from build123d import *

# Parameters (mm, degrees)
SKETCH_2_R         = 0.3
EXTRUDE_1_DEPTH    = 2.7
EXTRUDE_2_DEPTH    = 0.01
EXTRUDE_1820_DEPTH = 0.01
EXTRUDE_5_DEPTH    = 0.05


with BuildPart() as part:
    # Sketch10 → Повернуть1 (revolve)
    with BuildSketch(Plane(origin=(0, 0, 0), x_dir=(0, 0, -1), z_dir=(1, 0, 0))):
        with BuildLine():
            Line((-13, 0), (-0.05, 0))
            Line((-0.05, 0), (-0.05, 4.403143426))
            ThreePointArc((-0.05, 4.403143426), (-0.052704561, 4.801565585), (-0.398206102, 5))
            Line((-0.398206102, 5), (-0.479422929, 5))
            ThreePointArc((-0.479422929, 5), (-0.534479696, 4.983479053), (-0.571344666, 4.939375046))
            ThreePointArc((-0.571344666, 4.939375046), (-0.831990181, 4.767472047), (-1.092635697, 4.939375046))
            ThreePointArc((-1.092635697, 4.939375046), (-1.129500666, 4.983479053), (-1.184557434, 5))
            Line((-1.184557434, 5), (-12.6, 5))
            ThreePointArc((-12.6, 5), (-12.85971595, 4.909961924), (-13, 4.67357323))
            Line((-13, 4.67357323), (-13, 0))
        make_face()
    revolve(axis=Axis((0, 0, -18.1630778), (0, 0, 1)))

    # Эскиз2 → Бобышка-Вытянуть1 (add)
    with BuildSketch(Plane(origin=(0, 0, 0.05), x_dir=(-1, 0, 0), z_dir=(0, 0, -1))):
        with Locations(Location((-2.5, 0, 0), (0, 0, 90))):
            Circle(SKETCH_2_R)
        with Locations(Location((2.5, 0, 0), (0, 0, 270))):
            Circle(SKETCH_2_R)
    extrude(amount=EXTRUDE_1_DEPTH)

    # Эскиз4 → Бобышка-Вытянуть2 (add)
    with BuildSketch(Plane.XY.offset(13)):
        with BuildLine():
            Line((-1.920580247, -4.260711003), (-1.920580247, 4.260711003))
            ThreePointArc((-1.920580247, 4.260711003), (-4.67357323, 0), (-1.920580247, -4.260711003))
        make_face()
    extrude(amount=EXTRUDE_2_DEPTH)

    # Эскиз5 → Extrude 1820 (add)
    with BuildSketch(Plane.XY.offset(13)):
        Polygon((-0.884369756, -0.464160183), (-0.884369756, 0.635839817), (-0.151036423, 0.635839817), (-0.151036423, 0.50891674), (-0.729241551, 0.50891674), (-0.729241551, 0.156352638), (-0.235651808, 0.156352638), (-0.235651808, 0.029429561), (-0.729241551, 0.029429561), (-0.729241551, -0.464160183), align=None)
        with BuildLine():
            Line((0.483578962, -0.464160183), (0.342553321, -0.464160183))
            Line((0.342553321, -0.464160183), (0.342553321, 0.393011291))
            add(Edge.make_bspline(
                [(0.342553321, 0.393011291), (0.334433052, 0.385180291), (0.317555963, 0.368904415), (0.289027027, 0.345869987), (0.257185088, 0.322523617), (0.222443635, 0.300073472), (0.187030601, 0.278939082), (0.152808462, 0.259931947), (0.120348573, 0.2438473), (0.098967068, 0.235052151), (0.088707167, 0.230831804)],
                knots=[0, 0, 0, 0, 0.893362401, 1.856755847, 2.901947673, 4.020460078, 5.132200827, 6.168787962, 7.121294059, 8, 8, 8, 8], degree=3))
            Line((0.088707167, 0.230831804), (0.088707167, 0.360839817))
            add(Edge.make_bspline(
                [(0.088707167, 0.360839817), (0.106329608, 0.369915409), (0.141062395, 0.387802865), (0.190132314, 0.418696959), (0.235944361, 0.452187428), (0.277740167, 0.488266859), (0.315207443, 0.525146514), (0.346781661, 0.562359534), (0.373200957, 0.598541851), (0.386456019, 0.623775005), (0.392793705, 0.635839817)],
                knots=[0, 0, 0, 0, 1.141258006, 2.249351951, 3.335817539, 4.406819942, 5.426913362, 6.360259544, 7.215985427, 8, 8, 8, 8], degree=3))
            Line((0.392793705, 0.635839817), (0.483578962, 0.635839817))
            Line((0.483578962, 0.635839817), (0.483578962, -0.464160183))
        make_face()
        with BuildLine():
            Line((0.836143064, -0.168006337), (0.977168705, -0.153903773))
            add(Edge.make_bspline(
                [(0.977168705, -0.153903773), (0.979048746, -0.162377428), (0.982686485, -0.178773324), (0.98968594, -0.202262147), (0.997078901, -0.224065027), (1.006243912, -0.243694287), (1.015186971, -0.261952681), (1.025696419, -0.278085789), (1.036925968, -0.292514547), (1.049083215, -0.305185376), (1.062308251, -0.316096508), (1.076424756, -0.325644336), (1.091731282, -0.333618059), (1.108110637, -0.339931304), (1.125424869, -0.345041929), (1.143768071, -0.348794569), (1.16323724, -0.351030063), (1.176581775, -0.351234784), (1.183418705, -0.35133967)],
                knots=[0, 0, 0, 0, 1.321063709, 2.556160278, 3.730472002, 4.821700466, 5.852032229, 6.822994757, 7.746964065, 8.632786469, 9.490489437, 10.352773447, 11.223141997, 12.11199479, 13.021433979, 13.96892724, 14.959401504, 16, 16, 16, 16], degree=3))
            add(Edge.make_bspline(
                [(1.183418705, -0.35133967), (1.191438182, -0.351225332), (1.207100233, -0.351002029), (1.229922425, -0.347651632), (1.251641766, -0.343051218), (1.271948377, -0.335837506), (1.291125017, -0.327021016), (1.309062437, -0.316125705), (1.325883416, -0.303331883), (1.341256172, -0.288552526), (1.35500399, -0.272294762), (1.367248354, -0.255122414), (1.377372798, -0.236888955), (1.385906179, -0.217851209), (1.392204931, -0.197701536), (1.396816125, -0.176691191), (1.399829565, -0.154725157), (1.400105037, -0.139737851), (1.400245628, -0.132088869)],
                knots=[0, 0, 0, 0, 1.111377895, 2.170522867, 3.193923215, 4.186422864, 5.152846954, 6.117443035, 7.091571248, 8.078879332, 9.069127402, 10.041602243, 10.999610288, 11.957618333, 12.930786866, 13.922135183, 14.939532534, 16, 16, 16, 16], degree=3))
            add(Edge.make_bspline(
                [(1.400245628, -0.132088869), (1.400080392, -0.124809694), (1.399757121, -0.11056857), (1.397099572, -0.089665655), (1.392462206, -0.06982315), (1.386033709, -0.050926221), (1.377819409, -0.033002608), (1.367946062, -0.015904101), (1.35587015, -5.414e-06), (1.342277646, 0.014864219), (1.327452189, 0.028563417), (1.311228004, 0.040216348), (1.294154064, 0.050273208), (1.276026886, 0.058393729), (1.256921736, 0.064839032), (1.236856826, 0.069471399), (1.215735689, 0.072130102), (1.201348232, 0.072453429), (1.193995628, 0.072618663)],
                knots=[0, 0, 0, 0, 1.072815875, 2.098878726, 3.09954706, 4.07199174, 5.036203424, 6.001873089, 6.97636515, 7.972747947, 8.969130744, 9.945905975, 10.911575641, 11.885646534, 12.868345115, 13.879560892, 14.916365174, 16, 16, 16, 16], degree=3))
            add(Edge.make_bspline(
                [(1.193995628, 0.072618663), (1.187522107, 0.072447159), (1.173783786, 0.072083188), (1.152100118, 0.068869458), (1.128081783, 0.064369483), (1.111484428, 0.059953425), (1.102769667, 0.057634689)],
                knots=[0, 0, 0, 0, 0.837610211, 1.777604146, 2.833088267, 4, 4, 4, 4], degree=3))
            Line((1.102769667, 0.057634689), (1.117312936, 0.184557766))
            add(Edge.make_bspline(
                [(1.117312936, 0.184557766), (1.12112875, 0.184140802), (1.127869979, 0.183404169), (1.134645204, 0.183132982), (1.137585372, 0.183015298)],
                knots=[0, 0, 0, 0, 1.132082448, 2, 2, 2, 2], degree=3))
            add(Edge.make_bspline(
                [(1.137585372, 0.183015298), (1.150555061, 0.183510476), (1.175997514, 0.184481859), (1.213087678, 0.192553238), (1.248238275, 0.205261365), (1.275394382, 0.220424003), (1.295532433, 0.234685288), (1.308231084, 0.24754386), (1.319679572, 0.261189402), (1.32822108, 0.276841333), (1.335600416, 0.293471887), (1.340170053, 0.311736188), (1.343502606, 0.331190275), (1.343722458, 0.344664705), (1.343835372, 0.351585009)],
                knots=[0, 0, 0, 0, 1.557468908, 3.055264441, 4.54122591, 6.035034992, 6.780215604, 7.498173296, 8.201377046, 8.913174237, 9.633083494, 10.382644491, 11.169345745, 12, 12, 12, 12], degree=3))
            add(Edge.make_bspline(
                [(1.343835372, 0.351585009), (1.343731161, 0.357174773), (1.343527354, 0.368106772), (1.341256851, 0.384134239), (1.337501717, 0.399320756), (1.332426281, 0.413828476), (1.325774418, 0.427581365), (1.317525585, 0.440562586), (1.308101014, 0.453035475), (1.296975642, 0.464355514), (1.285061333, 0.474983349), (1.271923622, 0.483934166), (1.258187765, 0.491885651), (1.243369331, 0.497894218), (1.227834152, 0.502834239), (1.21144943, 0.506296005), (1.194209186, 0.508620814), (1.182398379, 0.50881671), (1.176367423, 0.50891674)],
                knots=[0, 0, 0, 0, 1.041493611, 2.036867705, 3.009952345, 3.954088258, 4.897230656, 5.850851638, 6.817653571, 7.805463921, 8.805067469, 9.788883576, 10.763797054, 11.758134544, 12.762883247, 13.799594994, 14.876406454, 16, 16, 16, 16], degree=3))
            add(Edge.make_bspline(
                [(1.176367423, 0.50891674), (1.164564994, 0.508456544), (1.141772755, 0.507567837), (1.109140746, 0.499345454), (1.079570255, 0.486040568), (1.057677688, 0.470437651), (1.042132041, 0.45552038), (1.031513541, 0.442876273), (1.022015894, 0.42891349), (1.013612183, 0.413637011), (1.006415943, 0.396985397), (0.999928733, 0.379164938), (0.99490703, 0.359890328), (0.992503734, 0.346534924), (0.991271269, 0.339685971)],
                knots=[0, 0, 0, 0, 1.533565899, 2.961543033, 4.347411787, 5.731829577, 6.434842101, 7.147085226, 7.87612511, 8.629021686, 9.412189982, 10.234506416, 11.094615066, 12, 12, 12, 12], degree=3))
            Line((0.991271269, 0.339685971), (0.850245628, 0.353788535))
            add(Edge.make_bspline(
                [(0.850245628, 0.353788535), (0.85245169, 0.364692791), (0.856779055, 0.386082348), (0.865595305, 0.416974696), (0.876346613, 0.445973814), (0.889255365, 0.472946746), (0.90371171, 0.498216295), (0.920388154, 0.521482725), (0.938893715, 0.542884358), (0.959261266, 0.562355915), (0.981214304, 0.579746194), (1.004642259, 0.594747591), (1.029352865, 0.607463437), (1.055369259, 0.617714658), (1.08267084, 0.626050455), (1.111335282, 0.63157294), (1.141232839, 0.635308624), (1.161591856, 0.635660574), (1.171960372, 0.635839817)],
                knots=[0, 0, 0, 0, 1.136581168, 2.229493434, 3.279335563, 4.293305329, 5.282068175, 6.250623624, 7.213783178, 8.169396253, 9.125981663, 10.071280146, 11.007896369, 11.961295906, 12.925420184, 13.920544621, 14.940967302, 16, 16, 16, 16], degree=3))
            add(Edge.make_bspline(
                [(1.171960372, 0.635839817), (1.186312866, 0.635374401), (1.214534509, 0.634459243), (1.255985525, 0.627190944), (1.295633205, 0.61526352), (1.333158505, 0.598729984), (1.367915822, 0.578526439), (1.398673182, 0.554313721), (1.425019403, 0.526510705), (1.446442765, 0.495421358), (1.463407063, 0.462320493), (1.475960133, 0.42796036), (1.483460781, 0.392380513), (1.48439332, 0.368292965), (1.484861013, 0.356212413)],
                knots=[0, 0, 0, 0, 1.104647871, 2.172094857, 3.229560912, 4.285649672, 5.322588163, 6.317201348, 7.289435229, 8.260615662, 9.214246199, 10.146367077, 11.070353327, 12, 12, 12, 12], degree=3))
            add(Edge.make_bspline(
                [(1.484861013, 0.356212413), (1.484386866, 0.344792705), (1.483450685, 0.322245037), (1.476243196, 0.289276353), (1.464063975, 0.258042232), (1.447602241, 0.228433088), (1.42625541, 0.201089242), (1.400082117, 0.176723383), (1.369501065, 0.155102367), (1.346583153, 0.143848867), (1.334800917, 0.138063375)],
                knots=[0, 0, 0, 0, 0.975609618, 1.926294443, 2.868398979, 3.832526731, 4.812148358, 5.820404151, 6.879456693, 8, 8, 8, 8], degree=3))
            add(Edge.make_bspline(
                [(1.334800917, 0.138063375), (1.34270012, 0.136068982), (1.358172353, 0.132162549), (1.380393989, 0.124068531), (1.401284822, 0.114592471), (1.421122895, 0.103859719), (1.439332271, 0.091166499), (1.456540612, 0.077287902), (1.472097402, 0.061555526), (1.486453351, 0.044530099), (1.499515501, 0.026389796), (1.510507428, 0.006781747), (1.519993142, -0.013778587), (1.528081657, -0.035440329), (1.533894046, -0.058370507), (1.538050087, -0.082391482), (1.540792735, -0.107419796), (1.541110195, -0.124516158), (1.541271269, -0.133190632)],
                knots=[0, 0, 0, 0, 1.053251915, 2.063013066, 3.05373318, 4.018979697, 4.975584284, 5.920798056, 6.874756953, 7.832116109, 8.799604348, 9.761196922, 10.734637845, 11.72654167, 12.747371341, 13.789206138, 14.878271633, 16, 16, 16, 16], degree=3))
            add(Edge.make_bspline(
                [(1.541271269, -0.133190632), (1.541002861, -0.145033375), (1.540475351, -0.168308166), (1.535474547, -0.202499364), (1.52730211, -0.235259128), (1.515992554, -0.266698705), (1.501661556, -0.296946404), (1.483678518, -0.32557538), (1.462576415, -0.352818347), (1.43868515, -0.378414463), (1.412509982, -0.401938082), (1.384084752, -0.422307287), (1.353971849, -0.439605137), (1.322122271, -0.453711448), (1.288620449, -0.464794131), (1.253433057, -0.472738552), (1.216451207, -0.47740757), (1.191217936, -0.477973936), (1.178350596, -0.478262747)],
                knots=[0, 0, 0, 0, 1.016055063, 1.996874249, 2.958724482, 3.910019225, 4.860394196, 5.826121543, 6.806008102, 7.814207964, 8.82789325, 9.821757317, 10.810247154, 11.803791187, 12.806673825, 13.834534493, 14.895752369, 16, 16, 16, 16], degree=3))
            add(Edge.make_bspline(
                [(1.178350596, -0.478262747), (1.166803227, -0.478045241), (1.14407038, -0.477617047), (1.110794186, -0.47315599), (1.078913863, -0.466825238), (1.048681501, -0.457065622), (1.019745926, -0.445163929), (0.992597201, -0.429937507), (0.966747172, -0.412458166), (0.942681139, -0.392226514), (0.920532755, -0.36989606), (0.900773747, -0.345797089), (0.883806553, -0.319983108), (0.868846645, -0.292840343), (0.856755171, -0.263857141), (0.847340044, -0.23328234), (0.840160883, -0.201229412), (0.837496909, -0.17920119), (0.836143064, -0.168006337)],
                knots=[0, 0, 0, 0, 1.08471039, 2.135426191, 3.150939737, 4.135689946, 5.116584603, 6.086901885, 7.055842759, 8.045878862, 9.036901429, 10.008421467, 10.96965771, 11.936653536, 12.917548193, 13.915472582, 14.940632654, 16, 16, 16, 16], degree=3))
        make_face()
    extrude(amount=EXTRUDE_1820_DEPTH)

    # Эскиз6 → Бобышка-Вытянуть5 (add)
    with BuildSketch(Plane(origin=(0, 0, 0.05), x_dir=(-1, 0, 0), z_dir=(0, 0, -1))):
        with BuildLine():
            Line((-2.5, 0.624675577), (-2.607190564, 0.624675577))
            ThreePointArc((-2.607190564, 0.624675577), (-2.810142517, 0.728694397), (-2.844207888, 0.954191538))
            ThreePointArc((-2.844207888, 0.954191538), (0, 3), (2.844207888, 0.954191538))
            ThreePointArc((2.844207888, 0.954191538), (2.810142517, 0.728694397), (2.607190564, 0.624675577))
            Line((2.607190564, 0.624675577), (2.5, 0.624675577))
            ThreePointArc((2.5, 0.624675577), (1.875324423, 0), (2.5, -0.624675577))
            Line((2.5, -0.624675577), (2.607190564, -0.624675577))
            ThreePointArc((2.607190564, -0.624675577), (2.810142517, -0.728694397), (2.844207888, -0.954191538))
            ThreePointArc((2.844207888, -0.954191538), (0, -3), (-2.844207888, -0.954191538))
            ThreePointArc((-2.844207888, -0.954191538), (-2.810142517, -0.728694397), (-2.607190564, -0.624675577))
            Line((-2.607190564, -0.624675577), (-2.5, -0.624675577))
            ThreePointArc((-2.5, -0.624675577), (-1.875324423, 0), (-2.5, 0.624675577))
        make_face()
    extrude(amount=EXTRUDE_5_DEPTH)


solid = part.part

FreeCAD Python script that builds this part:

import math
import FreeCAD as App
import Part
import Sketcher
Q = App.Units.Quantity


def add_polygon(sketch, points):
    """Adds a closed chain of lines whose ends are joined by coincident constraints."""
    first, n = sketch.GeometryCount, len(points)
    for a, b in zip(points, points[1:] + points[:1]):
        sketch.addGeometry(Part.LineSegment(App.Vector(*a, 0), App.Vector(*b, 0)), False)
    for i in range(n):
        sketch.addConstraint(Sketcher.Constraint("Coincident", first + i, 2, first + (i + 1) % n, 1))

doc = App.newDocument("Part")
body = doc.addObject("PartDesign::Body", "Body")

# Sketch on YZ plane
sketch1 = body.newObject("Sketcher::SketchObject", "Sketch")
sketch1.AttachmentSupport = (doc.getObject("YZ_Plane"), [""])
sketch1.MapMode = "FlatFace"
sketch1.addGeometry([
    Part.LineSegment(App.Vector(0, 13, 0), App.Vector(0, 0.05, 0)),  # 0
    Part.LineSegment(App.Vector(0, 0.05, 0), App.Vector(4.4, 0.05, 0)),  # 1
    Part.ArcOfCircle(Part.Circle(App.Vector(4.6, 0.4, 0), App.Vector(0, 0, 1), 0.4), math.radians(-119), math.radians(0)),  # 2
    Part.LineSegment(App.Vector(5, 0.4, 0), App.Vector(5, 0.48, 0)),  # 3
    Part.ArcOfCircle(Part.Circle(App.Vector(4.9, 0.48, 0), App.Vector(0, 0, 1), 0.1), math.radians(0), math.radians(67)),  # 4
    Part.ArcOfCircle(Part.Circle(App.Vector(5.05, 0.83, 0), App.Vector(0, 0, 1), 0.28), math.radians(113), math.radians(247)),  # 5
    Part.ArcOfCircle(Part.Circle(App.Vector(4.9, 1.18, 0), App.Vector(0, 0, 1), 0.1), math.radians(-67), math.radians(0)),  # 6
    Part.LineSegment(App.Vector(5, 1.18, 0), App.Vector(5, 12.6, 0)),  # 7
    Part.ArcOfCircle(Part.Circle(App.Vector(4.6, 12.61, 0), App.Vector(0, 0, 1), 0.4), math.radians(-1), math.radians(79)),  # 8
    Part.LineSegment(App.Vector(4.67, 13, 0), App.Vector(0, 13, 0)),  # 9
], False)
sketch1.addConstraint([
    Sketcher.Constraint("Coincident", 0, 2, 1, 1),
    Sketcher.Constraint("Coincident", 1, 2, 2, 1),
    Sketcher.Constraint("Tangent", 2, 2, 3, 1),
    Sketcher.Constraint("Tangent", 3, 2, 4, 1),
    Sketcher.Constraint("Tangent", 4, 2, 5, 2),
    Sketcher.Constraint("Tangent", 5, 1, 6, 1),
    Sketcher.Constraint("Tangent", 6, 2, 7, 1),
    Sketcher.Constraint("Coincident", 7, 2, 8, 1),
    Sketcher.Constraint("Coincident", 8, 2, 9, 1),
    Sketcher.Constraint("Coincident", 9, 2, 0, 1),
    Sketcher.Constraint("Vertical", 0),
    Sketcher.Constraint("Horizontal", 1),
    Sketcher.Constraint("Vertical", 3),
    Sketcher.Constraint("Vertical", 7),
    Sketcher.Constraint("Horizontal", 9),
    Sketcher.Constraint("Equal", 4, 6),
    Sketcher.Constraint("Equal", 2, 8),
    Sketcher.Constraint("PointOnObject", 0, 2, -2),
    Sketcher.Constraint("Vertical", 4, 3, 6, 3),
    Sketcher.Constraint("Radius", 2, Q("0.4 mm")),
    Sketcher.Constraint("Radius", 4, Q("0.1 mm")),
    Sketcher.Constraint("DistanceX", -1, 1, 2, 2, Q("5 mm")),
    Sketcher.Constraint("DistanceY", -1, 1, 8, 2, Q("13 mm")),
    Sketcher.Constraint("DistanceY", 0, 2, 0, 1, Q("12.95 mm")),
    Sketcher.Constraint("DistanceY", -1, 1, 7, 2, Q("12.6 mm")),
    Sketcher.Constraint("Radius", 5, Q("0.283552 mm")),
    Sketcher.Constraint("DistanceX", 8, 2, 5, 1, Q("0.265802 mm")),
    Sketcher.Constraint("DistanceX", 1, 1, 1, 2, Q("4.403143 mm")),
    Sketcher.Constraint("DistanceX", 9, 2, 9, 1, Q("4.673573 mm")),
    Sketcher.Constraint("DistanceY", 3, 1, 3, 2, Q("0.081217 mm")),
])
revolution = body.newObject("PartDesign::Revolution", "Revolution")
revolution.Profile = sketch1
revolution.ReferenceAxis = (sketch1, ["V_Axis"])
revolution.Angle = 360

# Sketch on XY plane
sketch2 = body.newObject("Sketcher::SketchObject", "Sketch001")
sketch2.AttachmentSupport = (doc.getObject("XY_Plane"), [""])
sketch2.MapMode = "FlatFace"
sketch2.AttachmentOffset = App.Placement(App.Vector(0, 0, 0.05), App.Rotation())
sketch2.addGeometry([
    Part.Circle(App.Vector(2.5, 0, 0), App.Vector(0, 0, 1), 0.3),
    Part.Circle(App.Vector(-2.5, 0, 0), App.Vector(0, 0, 1), 0.3),
], False)
sketch2.addConstraint([
    Sketcher.Constraint("Equal", 0, 1),
    Sketcher.Constraint("Symmetric", 0, 3, 1, 3, -1, 1),
    Sketcher.Constraint("PointOnObject", 0, 3, -1),
    Sketcher.Constraint("Diameter", 0, Q("0.6 mm")),
    Sketcher.Constraint("DistanceX", 1, 3, 0, 3, Q("5 mm")),
])
pad1 = body.newObject("PartDesign::Pad", "Pad")
pad1.Profile = sketch2
pad1.Length = 2.7
pad1.Reversed = True

# Sketch on XY plane
sketch3 = body.newObject("Sketcher::SketchObject", "Sketch002")
sketch3.AttachmentSupport = (doc.getObject("XY_Plane"), [""])
sketch3.MapMode = "FlatFace"
sketch3.AttachmentOffset = App.Placement(App.Vector(0, 0, 13), App.Rotation())
sketch3.addGeometry([
    Part.LineSegment(App.Vector(-1.9, -4.3, 0), App.Vector(-1.9, 4.3, 0)),
    Part.ArcOfCircle(Part.Circle(App.Vector(0, 0, 0), App.Vector(0, 0, 1), 4.7), math.radians(114), math.radians(246)),
], False)
sketch3.addConstraint([
    Sketcher.Constraint("Coincident", 0, 1, 1, 2),
    Sketcher.Constraint("Coincident", 1, 1, 0, 2),
    Sketcher.Constraint("Vertical", 0),
    Sketcher.Constraint("Coincident", 1, 3, -1, 1),
    Sketcher.Constraint("Radius", 1, Q("4.673573 mm")),
    Sketcher.Constraint("DistanceY", 0, 1, 0, 2, Q("8.521422 mm")),
])
pad2 = body.newObject("PartDesign::Pad", "Pad001")
pad2.Profile = sketch3
pad2.Length = 0.01

# Sketch on XY plane
sketch4 = body.newObject("Sketcher::SketchObject", "Sketch003")
sketch4.AttachmentSupport = (doc.getObject("XY_Plane"), [""])
sketch4.MapMode = "FlatFace"
sketch4.AttachmentOffset = App.Placement(App.Vector(0, 0, 13), App.Rotation())
add_polygon(sketch4, [(-0.88437, 0.63584), (-0.88437, -0.46416), (-0.729242, -0.46416), (-0.729242, 0.02943), (-0.235652, 0.02943), (-0.235652, 0.156353), (-0.729242, 0.156353), (-0.729242, 0.508917), (-0.151036, 0.508917), (-0.151036, 0.63584)])  # lines 0-9
sketch4.addGeometry(Part.LineSegment(App.Vector(0.342553, -0.46416, 0), App.Vector(0.483579, -0.46416, 0)), False)  # 10
sketch4.addGeometry(Part.LineSegment(App.Vector(0.483579, -0.46416, 0), App.Vector(0.483579, 0.63584, 0)), False)  # 11
sketch4.addGeometry(Part.LineSegment(App.Vector(0.483579, 0.63584, 0), App.Vector(0.392794, 0.63584, 0)), False)  # 12
sketch4.addGeometry(Part.BSplineCurve([App.Vector(0.088707, 0.36084, 0), App.Vector(0.10633, 0.369915, 0), App.Vector(0.141062, 0.387803, 0), App.Vector(0.190132, 0.418697, 0), App.Vector(0.235944, 0.452187, 0), App.Vector(0.27774, 0.488267, 0), App.Vector(0.315207, 0.525147, 0), App.Vector(0.346782, 0.56236, 0), App.Vector(0.373201, 0.598542, 0), App.Vector(0.386456, 0.623775, 0), App.Vector(0.392794, 0.63584, 0)], [4, 1, 1, 1, 1, 1, 1, 1, 4], [0, 1.141258006, 2.249351951, 3.335817539, 4.406819942, 5.426913362, 6.360259544, 7.215985427, 8], False, 3, [1, 1, 1, 1, 1, 1, 1, 1, 1, 1, 1], False), False)  # 13
sketch4.addGeometry(Part.LineSegment(App.Vector(0.088707, 0.36084, 0), App.Vector(0.088707, 0.230832, 0)), False)  # 14
sketch4.addGeometry(Part.BSplineCurve([App.Vector(0.342553, 0.393011, 0), App.Vector(0.334433, 0.38518, 0), App.Vector(0.317556, 0.368904, 0), App.Vector(0.289027, 0.34587, 0), App.Vector(0.257185, 0.322524, 0), App.Vector(0.222444, 0.300073, 0), App.Vector(0.187031, 0.278939, 0), App.Vector(0.152808, 0.259932, 0), App.Vector(0.120349, 0.243847, 0), App.Vector(0.098967, 0.235052, 0), App.Vector(0.088707, 0.230832, 0)], [4, 1, 1, 1, 1, 1, 1, 1, 4], [0, 0.893362401, 1.856755847, 2.901947673, 4.020460078, 5.132200827, 6.168787962, 7.121294059, 8], False, 3, [1, 1, 1, 1, 1, 1, 1, 1, 1, 1, 1], False), False)  # 15
sketch4.addGeometry(Part.LineSegment(App.Vector(0.342553, 0.393011, 0), App.Vector(0.342553, -0.46416, 0)), False)  # 16
sketch4.addGeometry(Part.LineSegment(App.Vector(0.977169, -0.153904, 0), App.Vector(0.836143, -0.168006, 0)), False)  # 17
sketch4.addGeometry(Part.BSplineCurve([App.Vector(1.178351, -0.478263, 0), App.Vector(1.166803, -0.478045, 0), App.Vector(1.14407, -0.477617, 0), App.Vector(1.110794, -0.473156, 0), App.Vector(1.078914, -0.466825, 0), App.Vector(1.048682, -0.457066, 0), App.Vector(1.019746, -0.445164, 0), App.Vector(0.992597, -0.429938, 0), App.Vector(0.966747, -0.412458, 0), App.Vector(0.942681, -0.392227, 0), App.Vector(0.920533, -0.369896, 0), App.Vector(0.900774, -0.345797, 0), App.Vector(0.883807, -0.319983, 0), App.Vector(0.868847, -0.29284, 0), App.Vector(0.856755, -0.263857, 0), App.Vector(0.84734, -0.233282, 0), App.Vector(0.840161, -0.201229, 0), App.Vector(0.837497, -0.179201, 0), App.Vector(0.836143, -0.168006, 0)], [4, 1, 1, 1, 1, 1, 1, 1, 1, 1, 1, 1, 1, 1, 1, 1, 4], [0, 1.08471039, 2.135426191, 3.150939737, 4.135689946, 5.116584603, 6.086901885, 7.055842759, 8.045878862, 9.036901429, 10.008421467, 10.96965771, 11.936653536, 12.917548193, 13.915472582, 14.940632654, 16], False, 3, [1, 1, 1, 1, 1, 1, 1, 1, 1, 1, 1, 1, 1, 1, 1, 1, 1, 1, 1], False), False)  # 18
sketch4.addGeometry(Part.BSplineCurve([App.Vector(1.541271, -0.133191, 0), App.Vector(1.541003, -0.145033, 0), App.Vector(1.540475, -0.168308, 0), App.Vector(1.535475, -0.202499, 0), App.Vector(1.527302, -0.235259, 0), App.Vector(1.515993, -0.266699, 0), App.Vector(1.501662, -0.296946, 0), App.Vector(1.483679, -0.325575, 0), App.Vector(1.462576, -0.352818, 0), App.Vector(1.438685, -0.378414, 0), App.Vector(1.41251, -0.401938, 0), App.Vector(1.384085, -0.422307, 0), App.Vector(1.353972, -0.439605, 0), App.Vector(1.322122, -0.453711, 0), App.Vector(1.28862, -0.464794, 0), App.Vector(1.253433, -0.472739, 0), App.Vector(1.216451, -0.477408, 0), App.Vector(1.191218, -0.477974, 0), App.Vector(1.178351, -0.478263, 0)], [4, 1, 1, 1, 1, 1, 1, 1, 1, 1, 1, 1, 1, 1, 1, 1, 4], [0, 1.016055063, 1.996874249, 2.958724482, 3.910019225, 4.860394196, 5.826121543, 6.806008102, 7.814207964, 8.82789325, 9.821757317, 10.810247154, 11.803791187, 12.806673825, 13.834534493, 14.895752369, 16], False, 3, [1, 1, 1, 1, 1, 1, 1, 1, 1, 1, 1, 1, 1, 1, 1, 1, 1, 1, 1], False), False)  # 19
sketch4.addGeometry(Part.BSplineCurve([App.Vector(1.334801, 0.138063, 0), App.Vector(1.3427, 0.136069, 0), App.Vector(1.358172, 0.132163, 0), App.Vector(1.380394, 0.124069, 0), App.Vector(1.401285, 0.114592, 0), App.Vector(1.421123, 0.10386, 0), App.Vector(1.439332, 0.091166, 0), App.Vector(1.456541, 0.077288, 0), App.Vector(1.472097, 0.061556, 0), App.Vector(1.486453, 0.04453, 0), App.Vector(1.499516, 0.02639, 0), App.Vector(1.510507, 0.006782, 0), App.Vector(1.519993, -0.013779, 0), App.Vector(1.528082, -0.03544, 0), App.Vector(1.533894, -0.058371, 0), App.Vector(1.53805, -0.082391, 0), App.Vector(1.540793, -0.10742, 0), App.Vector(1.54111, -0.124516, 0), App.Vector(1.541271, -0.133191, 0)], [4, 1, 1, 1, 1, 1, 1, 1, 1, 1, 1, 1, 1, 1, 1, 1, 4], [0, 1.053251915, 2.063013066, 3.05373318, 4.018979697, 4.975584284, 5.920798056, 6.874756953, 7.832116109, 8.799604348, 9.761196922, 10.734637845, 11.72654167, 12.747371341, 13.789206138, 14.878271633, 16], False, 3, [1, 1, 1, 1, 1, 1, 1, 1, 1, 1, 1, 1, 1, 1, 1, 1, 1, 1, 1], False), False)  # 20
sketch4.addGeometry(Part.BSplineCurve([App.Vector(1.484861, 0.356212, 0), App.Vector(1.484387, 0.344793, 0), App.Vector(1.483451, 0.322245, 0), App.Vector(1.476243, 0.289276, 0), App.Vector(1.464064, 0.258042, 0), App.Vector(1.447602, 0.228433, 0), App.Vector(1.426255, 0.201089, 0), App.Vector(1.400082, 0.176723, 0), App.Vector(1.369501, 0.155102, 0), App.Vector(1.346583, 0.143849, 0), App.Vector(1.334801, 0.138063, 0)], [4, 1, 1, 1, 1, 1, 1, 1, 4], [0, 0.975609618, 1.926294443, 2.868398979, 3.832526731, 4.812148358, 5.820404151, 6.879456693, 8], False, 3, [1, 1, 1, 1, 1, 1, 1, 1, 1, 1, 1], False), False)  # 21
sketch4.addGeometry(Part.BSplineCurve([App.Vector(1.17196, 0.63584, 0), App.Vector(1.186313, 0.635374, 0), App.Vector(1.214535, 0.634459, 0), App.Vector(1.255986, 0.627191, 0), App.Vector(1.295633, 0.615264, 0), App.Vector(1.333159, 0.59873, 0), App.Vector(1.367916, 0.578526, 0), App.Vector(1.398673, 0.554314, 0), App.Vector(1.425019, 0.526511, 0), App.Vector(1.446443, 0.495421, 0), App.Vector(1.463407, 0.46232, 0), App.Vector(1.47596, 0.42796, 0), App.Vector(1.483461, 0.392381, 0), App.Vector(1.484393, 0.368293, 0), App.Vector(1.484861, 0.356212, 0)], [4, 1, 1, 1, 1, 1, 1, 1, 1, 1, 1, 1, 4], [0, 1.104647871, 2.172094857, 3.229560912, 4.285649672, 5.322588163, 6.317201348, 7.289435229, 8.260615662, 9.214246199, 10.146367077, 11.070353327, 12], False, 3, [1, 1, 1, 1, 1, 1, 1, 1, 1, 1, 1, 1, 1, 1, 1], False), False)  # 22
sketch4.addGeometry(Part.BSplineCurve([App.Vector(0.850246, 0.353789, 0), App.Vector(0.852452, 0.364693, 0), App.Vector(0.856779, 0.386082, 0), App.Vector(0.865595, 0.416975, 0), App.Vector(0.876347, 0.445974, 0), App.Vector(0.889255, 0.472947, 0), App.Vector(0.903712, 0.498216, 0), App.Vector(0.920388, 0.521483, 0), App.Vector(0.938894, 0.542884, 0), App.Vector(0.959261, 0.562356, 0), App.Vector(0.981214, 0.579746, 0), App.Vector(1.004642, 0.594748, 0), App.Vector(1.029353, 0.607463, 0), App.Vector(1.055369, 0.617715, 0), App.Vector(1.082671, 0.62605, 0), App.Vector(1.111335, 0.631573, 0), App.Vector(1.141233, 0.635309, 0), App.Vector(1.161592, 0.635661, 0), App.Vector(1.17196, 0.63584, 0)], [4, 1, 1, 1, 1, 1, 1, 1, 1, 1, 1, 1, 1, 1, 1, 1, 4], [0, 1.136581168, 2.229493434, 3.279335563, 4.293305329, 5.282068175, 6.250623624, 7.213783178, 8.169396253, 9.125981663, 10.071280146, 11.007896369, 11.961295906, 12.925420184, 13.920544621, 14.940967302, 16], False, 3, [1, 1, 1, 1, 1, 1, 1, 1, 1, 1, 1, 1, 1, 1, 1, 1, 1, 1, 1], False), False)  # 23
sketch4.addGeometry(Part.LineSegment(App.Vector(0.850246, 0.353789, 0), App.Vector(0.991271, 0.339686, 0)), False)  # 24
sketch4.addGeometry(Part.BSplineCurve([App.Vector(1.176367, 0.508917, 0), App.Vector(1.164565, 0.508457, 0), App.Vector(1.141773, 0.507568, 0), App.Vector(1.109141, 0.499345, 0), App.Vector(1.07957, 0.486041, 0), App.Vector(1.057678, 0.470438, 0), App.Vector(1.042132, 0.45552, 0), App.Vector(1.031514, 0.442876, 0), App.Vector(1.022016, 0.428913, 0), App.Vector(1.013612, 0.413637, 0), App.Vector(1.006416, 0.396985, 0), App.Vector(0.999929, 0.379165, 0), App.Vector(0.994907, 0.35989, 0), App.Vector(0.992504, 0.346535, 0), App.Vector(0.991271, 0.339686, 0)], [4, 1, 1, 1, 1, 1, 1, 1, 1, 1, 1, 1, 4], [0, 1.533565899, 2.961543033, 4.347411787, 5.731829577, 6.434842101, 7.147085226, 7.87612511, 8.629021686, 9.412189982, 10.234506416, 11.094615066, 12], False, 3, [1, 1, 1, 1, 1, 1, 1, 1, 1, 1, 1, 1, 1, 1, 1], False), False)  # 25
sketch4.addGeometry(Part.BSplineCurve([App.Vector(1.343835, 0.351585, 0), App.Vector(1.343731, 0.357175, 0), App.Vector(1.343527, 0.368107, 0), App.Vector(1.341257, 0.384134, 0), App.Vector(1.337502, 0.399321, 0), App.Vector(1.332426, 0.413828, 0), App.Vector(1.325774, 0.427581, 0), App.Vector(1.317526, 0.440563, 0), App.Vector(1.308101, 0.453035, 0), App.Vector(1.296976, 0.464356, 0), App.Vector(1.285061, 0.474983, 0), App.Vector(1.271924, 0.483934, 0), App.Vector(1.258188, 0.491886, 0), App.Vector(1.243369, 0.497894, 0), App.Vector(1.227834, 0.502834, 0), App.Vector(1.211449, 0.506296, 0), App.Vector(1.194209, 0.508621, 0), App.Vector(1.182398, 0.508817, 0), App.Vector(1.176367, 0.508917, 0)], [4, 1, 1, 1, 1, 1, 1, 1, 1, 1, 1, 1, 1, 1, 1, 1, 4], [0, 1.041493611, 2.036867705, 3.009952345, 3.954088258, 4.897230656, 5.850851638, 6.817653571, 7.805463921, 8.805067469, 9.788883576, 10.763797054, 11.758134544, 12.762883247, 13.799594994, 14.876406454, 16], False, 3, [1, 1, 1, 1, 1, 1, 1, 1, 1, 1, 1, 1, 1, 1, 1, 1, 1, 1, 1], False), False)  # 26
sketch4.addGeometry(Part.BSplineCurve([App.Vector(1.137585, 0.183015, 0), App.Vector(1.150555, 0.18351, 0), App.Vector(1.175998, 0.184482, 0), App.Vector(1.213088, 0.192553, 0), App.Vector(1.248238, 0.205261, 0), App.Vector(1.275394, 0.220424, 0), App.Vector(1.295532, 0.234685, 0), App.Vector(1.308231, 0.247544, 0), App.Vector(1.31968, 0.261189, 0), App.Vector(1.328221, 0.276841, 0), App.Vector(1.3356, 0.293472, 0), App.Vector(1.34017, 0.311736, 0), App.Vector(1.343503, 0.33119, 0), App.Vector(1.343722, 0.344665, 0), App.Vector(1.343835, 0.351585, 0)], [4, 1, 1, 1, 1, 1, 1, 1, 1, 1, 1, 1, 4], [0, 1.557468908, 3.055264441, 4.54122591, 6.035034992, 6.780215604, 7.498173296, 8.201377046, 8.913174237, 9.633083494, 10.382644491, 11.169345745, 12], False, 3, [1, 1, 1, 1, 1, 1, 1, 1, 1, 1, 1, 1, 1, 1, 1], False), False)  # 27
sketch4.addGeometry(Part.BSplineCurve([App.Vector(1.117313, 0.184558, 0), App.Vector(1.121129, 0.184141, 0), App.Vector(1.12787, 0.183404, 0), App.Vector(1.134645, 0.183133, 0), App.Vector(1.137585, 0.183015, 0)], [4, 1, 4], [0, 1.132082448, 2], False, 3, [1, 1, 1, 1, 1], False), False)  # 28
sketch4.addGeometry(Part.LineSegment(App.Vector(1.117313, 0.184558, 0), App.Vector(1.10277, 0.057635, 0)), False)  # 29
sketch4.addGeometry(Part.BSplineCurve([App.Vector(1.193996, 0.072619, 0), App.Vector(1.187522, 0.072447, 0), App.Vector(1.173784, 0.072083, 0), App.Vector(1.1521, 0.068869, 0), App.Vector(1.128082, 0.064369, 0), App.Vector(1.111484, 0.059953, 0), App.Vector(1.10277, 0.057635, 0)], [4, 1, 1, 1, 4], [0, 0.837610211, 1.777604146, 2.833088267, 4], False, 3, [1, 1, 1, 1, 1, 1, 1], False), False)  # 30
sketch4.addGeometry(Part.BSplineCurve([App.Vector(1.400246, -0.132089, 0), App.Vector(1.40008, -0.12481, 0), App.Vector(1.399757, -0.110569, 0), App.Vector(1.3971, -0.089666, 0), App.Vector(1.392462, -0.069823, 0), App.Vector(1.386034, -0.050926, 0), App.Vector(1.377819, -0.033003, 0), App.Vector(1.367946, -0.015904, 0), App.Vector(1.35587, -0.000005, 0), App.Vector(1.342278, 0.014864, 0), App.Vector(1.327452, 0.028563, 0), App.Vector(1.311228, 0.040216, 0), App.Vector(1.294154, 0.050273, 0), App.Vector(1.276027, 0.058394, 0), App.Vector(1.256922, 0.064839, 0), App.Vector(1.236857, 0.069471, 0), App.Vector(1.215736, 0.07213, 0), App.Vector(1.201348, 0.072453, 0), App.Vector(1.193996, 0.072619, 0)], [4, 1, 1, 1, 1, 1, 1, 1, 1, 1, 1, 1, 1, 1, 1, 1, 4], [0, 1.072815875, 2.098878726, 3.09954706, 4.07199174, 5.036203424, 6.001873089, 6.97636515, 7.972747947, 8.969130744, 9.945905975, 10.911575641, 11.885646534, 12.868345115, 13.879560892, 14.916365174, 16], False, 3, [1, 1, 1, 1, 1, 1, 1, 1, 1, 1, 1, 1, 1, 1, 1, 1, 1, 1, 1], False), False)  # 31
sketch4.addGeometry(Part.BSplineCurve([App.Vector(1.183419, -0.35134, 0), App.Vector(1.191438, -0.351225, 0), App.Vector(1.2071, -0.351002, 0), App.Vector(1.229922, -0.347652, 0), App.Vector(1.251642, -0.343051, 0), App.Vector(1.271948, -0.335838, 0), App.Vector(1.291125, -0.327021, 0), App.Vector(1.309062, -0.316126, 0), App.Vector(1.325883, -0.303332, 0), App.Vector(1.341256, -0.288553, 0), App.Vector(1.355004, -0.272295, 0), App.Vector(1.367248, -0.255122, 0), App.Vector(1.377373, -0.236889, 0), App.Vector(1.385906, -0.217851, 0), App.Vector(1.392205, -0.197702, 0), App.Vector(1.396816, -0.176691, 0), App.Vector(1.39983, -0.154725, 0), App.Vector(1.400105, -0.139738, 0), App.Vector(1.400246, -0.132089, 0)], [4, 1, 1, 1, 1, 1, 1, 1, 1, 1, 1, 1, 1, 1, 1, 1, 4], [0, 1.111377895, 2.170522867, 3.193923215, 4.186422864, 5.152846954, 6.117443035, 7.091571248, 8.078879332, 9.069127402, 10.041602243, 10.999610288, 11.957618333, 12.930786866, 13.922135183, 14.939532534, 16], False, 3, [1, 1, 1, 1, 1, 1, 1, 1, 1, 1, 1, 1, 1, 1, 1, 1, 1, 1, 1], False), False)  # 32
sketch4.addGeometry(Part.BSplineCurve([App.Vector(0.977169, -0.153904, 0), App.Vector(0.979049, -0.162377, 0), App.Vector(0.982686, -0.178773, 0), App.Vector(0.989686, -0.202262, 0), App.Vector(0.997079, -0.224065, 0), App.Vector(1.006244, -0.243694, 0), App.Vector(1.015187, -0.261953, 0), App.Vector(1.025696, -0.278086, 0), App.Vector(1.036926, -0.292515, 0), App.Vector(1.049083, -0.305185, 0), App.Vector(1.062308, -0.316097, 0), App.Vector(1.076425, -0.325644, 0), App.Vector(1.091731, -0.333618, 0), App.Vector(1.108111, -0.339931, 0), App.Vector(1.125425, -0.345042, 0), App.Vector(1.143768, -0.348795, 0), App.Vector(1.163237, -0.35103, 0), App.Vector(1.176582, -0.351235, 0), App.Vector(1.183419, -0.35134, 0)], [4, 1, 1, 1, 1, 1, 1, 1, 1, 1, 1, 1, 1, 1, 1, 1, 4], [0, 1.321063709, 2.556160278, 3.730472002, 4.821700466, 5.852032229, 6.822994757, 7.746964065, 8.632786469, 9.490489437, 10.352773447, 11.223141997, 12.11199479, 13.021433979, 13.96892724, 14.959401504, 16], False, 3, [1, 1, 1, 1, 1, 1, 1, 1, 1, 1, 1, 1, 1, 1, 1, 1, 1, 1, 1], False), False)  # 33
sketch4.addConstraint([
    Sketcher.Constraint("Block", 13),
    Sketcher.Constraint("Block", 15),
    Sketcher.Constraint("Block", 18),
    Sketcher.Constraint("Block", 19),
    Sketcher.Constraint("Block", 20),
    Sketcher.Constraint("Block", 21),
    Sketcher.Constraint("Block", 22),
    Sketcher.Constraint("Block", 23),
    Sketcher.Constraint("Block", 25),
    Sketcher.Constraint("Block", 26),
    Sketcher.Constraint("Block", 27),
    Sketcher.Constraint("Block", 28),
    Sketcher.Constraint("Block", 30),
    Sketcher.Constraint("Block", 31),
    Sketcher.Constraint("Block", 32),
    Sketcher.Constraint("Block", 33),
    Sketcher.Constraint("Coincident", 10, 2, 11, 1),
    Sketcher.Constraint("Coincident", 11, 2, 12, 1),
    Sketcher.Constraint("Coincident", 12, 2, 13, 2),
    Sketcher.Constraint("Coincident", 13, 1, 14, 1),
    Sketcher.Constraint("Coincident", 14, 2, 15, 2),
    Sketcher.Constraint("Coincident", 15, 1, 16, 1),
    Sketcher.Constraint("Coincident", 16, 2, 10, 1),
    Sketcher.Constraint("Coincident", 17, 2, 18, 2),
    Sketcher.Constraint("Coincident", 23, 1, 24, 1),
    Sketcher.Constraint("Coincident", 24, 2, 25, 2),
    Sketcher.Constraint("Coincident", 28, 1, 29, 1),
    Sketcher.Constraint("Coincident", 29, 2, 30, 2),
    Sketcher.Constraint("Coincident", 33, 1, 17, 1),
    Sketcher.Constraint("Vertical", 0),
    Sketcher.Constraint("Horizontal", 1),
    Sketcher.Constraint("Vertical", 2),
    Sketcher.Constraint("Horizontal", 3),
    Sketcher.Constraint("Vertical", 4),
    Sketcher.Constraint("Horizontal", 5),
    Sketcher.Constraint("Vertical", 6),
    Sketcher.Constraint("Horizontal", 7),
    Sketcher.Constraint("Vertical", 8),
    Sketcher.Constraint("Horizontal", 9),
    Sketcher.Constraint("Horizontal", 10),
    Sketcher.Constraint("Vertical", 11),
    Sketcher.Constraint("Horizontal", 12),
    Sketcher.Constraint("Vertical", 16),
    Sketcher.Constraint("Horizontal", 1, 2, 10, 2),
    Sketcher.Constraint("Horizontal", 9, 2, 11, 2),
    Sketcher.Constraint("Vertical", 2, 2, 5, 2),
    Sketcher.Constraint("Equal", 5, 2),
    Sketcher.Constraint("Equal", 4, 8),
    Sketcher.Constraint("DistanceY", 0, 2, 0, 1, Q("1.1 mm")),
    Sketcher.Constraint("DistanceX", 1, 1, 1, 2, Q("0.155128 mm")),
    Sketcher.Constraint("DistanceX", 3, 1, 3, 2, Q("0.49359 mm")),
    Sketcher.Constraint("DistanceX", 7, 1, 7, 2, Q("0.578205 mm")),
    Sketcher.Constraint("DistanceX", 10, 1, 10, 2, Q("0.141026 mm")),
    Sketcher.Constraint("DistanceY", 4, 1, 4, 2, Q("0.126923 mm")),
    Sketcher.Constraint("DistanceX", 0, 2, -1, 1, Q("0.88437 mm")),
])
pad3 = body.newObject("PartDesign::Pad", "Pad002")
pad3.Profile = sketch4
pad3.Length = 0.01

# Sketch on XY plane
sketch5 = body.newObject("Sketcher::SketchObject", "Sketch004")
sketch5.AttachmentSupport = (doc.getObject("XY_Plane"), [""])
sketch5.MapMode = "FlatFace"
sketch5.AttachmentOffset = App.Placement(App.Vector(0, 0, 0.05), App.Rotation())
sketch5.addGeometry([
    Part.LineSegment(App.Vector(2.61, 0.62, 0), App.Vector(2.5, 0.62, 0)),  # 0
    Part.ArcOfCircle(Part.Circle(App.Vector(2.5, 0, 0), App.Vector(0, 0, 1), 0.62), math.radians(90), math.radians(270)),  # 1
    Part.LineSegment(App.Vector(2.5, -0.62, 0), App.Vector(2.61, -0.62, 0)),  # 2
    Part.ArcOfCircle(Part.Circle(App.Vector(2.61, -0.87, 0), App.Vector(0, 0, 1), 0.25), math.radians(-19), math.radians(90)),  # 3
    Part.ArcOfCircle(Part.Circle(App.Vector(0, 0, 0), App.Vector(0, 0, 1), 3), math.radians(-161), math.radians(-19)),  # 4
    Part.ArcOfCircle(Part.Circle(App.Vector(-2.61, -0.87, 0), App.Vector(0, 0, 1), 0.25), math.radians(90), math.radians(199)),  # 5
    Part.LineSegment(App.Vector(-2.61, -0.62, 0), App.Vector(-2.5, -0.62, 0)),  # 6
    Part.ArcOfCircle(Part.Circle(App.Vector(-2.5, 0, 0), App.Vector(0, 0, 1), 0.62), math.radians(-90), math.radians(90)),  # 7
    Part.LineSegment(App.Vector(-2.5, 0.62, 0), App.Vector(-2.61, 0.62, 0)),  # 8
    Part.ArcOfCircle(Part.Circle(App.Vector(-2.61, 0.87, 0), App.Vector(0, 0, 1), 0.25), math.radians(161), math.radians(270)),  # 9
    Part.ArcOfCircle(Part.Circle(App.Vector(0, 0, 0), App.Vector(0, 0, 1), 3), math.radians(19), math.radians(161)),  # 10
    Part.ArcOfCircle(Part.Circle(App.Vector(2.61, 0.87, 0), App.Vector(0, 0, 1), 0.25), math.radians(-90), math.radians(19)),  # 11
], False)
sketch5.addConstraint([
    Sketcher.Constraint("Tangent", 0, 2, 1, 1),
    Sketcher.Constraint("Tangent", 1, 2, 2, 1),
    Sketcher.Constraint("Tangent", 2, 2, 3, 2),
    Sketcher.Constraint("Tangent", 3, 1, 4, 2),
    Sketcher.Constraint("Tangent", 4, 1, 5, 2),
    Sketcher.Constraint("Tangent", 5, 1, 6, 1),
    Sketcher.Constraint("Tangent", 6, 2, 7, 1),
    Sketcher.Constraint("Tangent", 7, 2, 8, 1),
    Sketcher.Constraint("Tangent", 8, 2, 9, 2),
    Sketcher.Constraint("Tangent", 9, 1, 10, 2),
    Sketcher.Constraint("Tangent", 10, 1, 11, 2),
    Sketcher.Constraint("Tangent", 11, 1, 0, 1),
    Sketcher.Constraint("Horizontal", 0),
    Sketcher.Constraint("Horizontal", 2),
    Sketcher.Constraint("Horizontal", 6),
    Sketcher.Constraint("Horizontal", 8),
    Sketcher.Constraint("Coincident", 4, 3, -1, 1),
    Sketcher.Constraint("Coincident", 10, 3, -1, 1),
    Sketcher.Constraint("Equal", 3, 5),
    Sketcher.Constraint("Equal", 1, 7),
    Sketcher.Constraint("Equal", 5, 9),
    Sketcher.Constraint("Equal", 4, 10),
    Sketcher.Constraint("Equal", 9, 11),
    Sketcher.Constraint("Symmetric", 1, 3, 7, 3, -1, 1),
    Sketcher.Constraint("PointOnObject", 1, 3, -1),
    Sketcher.Constraint("Radius", 4, Q("3 mm")),
    Sketcher.Constraint("Radius", 3, Q("0.25 mm")),
    Sketcher.Constraint("DistanceX", 7, 3, 1, 3, Q("5 mm")),
    Sketcher.Constraint("Radius", 1, Q("0.624676 mm")),
])
pad4 = body.newObject("PartDesign::Pad", "Pad003")
pad4.Profile = sketch5
pad4.Length = 0.05
pad4.Reversed = True

doc.recompute()
